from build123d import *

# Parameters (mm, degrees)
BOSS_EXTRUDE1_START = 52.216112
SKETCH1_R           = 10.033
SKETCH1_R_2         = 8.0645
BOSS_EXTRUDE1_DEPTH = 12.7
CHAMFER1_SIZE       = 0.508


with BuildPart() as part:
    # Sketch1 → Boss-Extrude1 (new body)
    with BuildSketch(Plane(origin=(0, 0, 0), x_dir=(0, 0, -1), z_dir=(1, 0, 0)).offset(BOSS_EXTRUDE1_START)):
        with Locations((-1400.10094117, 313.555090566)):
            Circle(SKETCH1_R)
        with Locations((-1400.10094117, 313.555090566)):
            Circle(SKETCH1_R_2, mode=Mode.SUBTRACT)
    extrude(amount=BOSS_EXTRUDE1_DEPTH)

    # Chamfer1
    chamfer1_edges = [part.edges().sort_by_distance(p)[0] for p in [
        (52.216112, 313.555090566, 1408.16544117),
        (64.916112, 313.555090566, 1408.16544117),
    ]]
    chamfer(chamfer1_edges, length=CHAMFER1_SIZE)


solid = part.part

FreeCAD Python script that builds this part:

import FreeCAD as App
import Part
import Sketcher
Q = App.Units.Quantity


def edges_at(feature, points):
    """Names of the edges that pass closest to the given points."""
    edges = feature.Shape.Edges
    near = lambda p: min(range(len(edges)), key=lambda i: edges[i].distToShape(Part.Vertex(*p))[0])
    return sorted({f"Edge{near(p) + 1}" for p in points})

doc = App.newDocument("Part")
body = doc.addObject("PartDesign::Body", "Body")

# Sketch on YZ plane
sketch1 = doc.addObject("Sketcher::SketchObject", "Sketch")
body.addObject(sketch1)
sketch1.AttachmentSupport = (doc.YZ_Plane, [""])
sketch1.MapMode = "FlatFace"
sketch1.AttachmentOffset = App.Placement(App.Vector(0, 0, 52.216112), App.Rotation())
sketch1.addGeometry(Part.Circle(App.Vector(314, 1400, 0), App.Vector(0, 0, 1), 10), False)
sketch1.addGeometry(Part.Circle(App.Vector(314, 1400, 0), App.Vector(0, 0, 1), 8), False)
sketch1.addConstraint(Sketcher.Constraint("Coincident", 1, 3, 0, 3))
sketch1.addConstraint(Sketcher.Constraint("Diameter", 0, Q("0.79 in")))
sketch1.addConstraint(Sketcher.Constraint("Diameter", 1, Q("0.635 in")))
sketch1.addConstraint(Sketcher.Constraint("DistanceX", -1, 1, 0, 3, 313.555091))
sketch1.addConstraint(Sketcher.Constraint("DistanceY", -1, 1, 0, 3, 1400.100941))
pad1 = doc.addObject("PartDesign::Pad", "Pad")
body.addObject(pad1)
pad1.Profile = sketch1
pad1.Length = Q("0.5 in")
doc.recompute()

chamfer = doc.addObject("PartDesign::Chamfer", "Chamfer")
body.addObject(chamfer)
chamfer.Base = (pad1, edges_at(pad1, [(52.216, 313.555, 1408.165), (64.916, 313.555, 1408.165)]))
chamfer.Size = Q("0.02 in")

doc.recompute()
